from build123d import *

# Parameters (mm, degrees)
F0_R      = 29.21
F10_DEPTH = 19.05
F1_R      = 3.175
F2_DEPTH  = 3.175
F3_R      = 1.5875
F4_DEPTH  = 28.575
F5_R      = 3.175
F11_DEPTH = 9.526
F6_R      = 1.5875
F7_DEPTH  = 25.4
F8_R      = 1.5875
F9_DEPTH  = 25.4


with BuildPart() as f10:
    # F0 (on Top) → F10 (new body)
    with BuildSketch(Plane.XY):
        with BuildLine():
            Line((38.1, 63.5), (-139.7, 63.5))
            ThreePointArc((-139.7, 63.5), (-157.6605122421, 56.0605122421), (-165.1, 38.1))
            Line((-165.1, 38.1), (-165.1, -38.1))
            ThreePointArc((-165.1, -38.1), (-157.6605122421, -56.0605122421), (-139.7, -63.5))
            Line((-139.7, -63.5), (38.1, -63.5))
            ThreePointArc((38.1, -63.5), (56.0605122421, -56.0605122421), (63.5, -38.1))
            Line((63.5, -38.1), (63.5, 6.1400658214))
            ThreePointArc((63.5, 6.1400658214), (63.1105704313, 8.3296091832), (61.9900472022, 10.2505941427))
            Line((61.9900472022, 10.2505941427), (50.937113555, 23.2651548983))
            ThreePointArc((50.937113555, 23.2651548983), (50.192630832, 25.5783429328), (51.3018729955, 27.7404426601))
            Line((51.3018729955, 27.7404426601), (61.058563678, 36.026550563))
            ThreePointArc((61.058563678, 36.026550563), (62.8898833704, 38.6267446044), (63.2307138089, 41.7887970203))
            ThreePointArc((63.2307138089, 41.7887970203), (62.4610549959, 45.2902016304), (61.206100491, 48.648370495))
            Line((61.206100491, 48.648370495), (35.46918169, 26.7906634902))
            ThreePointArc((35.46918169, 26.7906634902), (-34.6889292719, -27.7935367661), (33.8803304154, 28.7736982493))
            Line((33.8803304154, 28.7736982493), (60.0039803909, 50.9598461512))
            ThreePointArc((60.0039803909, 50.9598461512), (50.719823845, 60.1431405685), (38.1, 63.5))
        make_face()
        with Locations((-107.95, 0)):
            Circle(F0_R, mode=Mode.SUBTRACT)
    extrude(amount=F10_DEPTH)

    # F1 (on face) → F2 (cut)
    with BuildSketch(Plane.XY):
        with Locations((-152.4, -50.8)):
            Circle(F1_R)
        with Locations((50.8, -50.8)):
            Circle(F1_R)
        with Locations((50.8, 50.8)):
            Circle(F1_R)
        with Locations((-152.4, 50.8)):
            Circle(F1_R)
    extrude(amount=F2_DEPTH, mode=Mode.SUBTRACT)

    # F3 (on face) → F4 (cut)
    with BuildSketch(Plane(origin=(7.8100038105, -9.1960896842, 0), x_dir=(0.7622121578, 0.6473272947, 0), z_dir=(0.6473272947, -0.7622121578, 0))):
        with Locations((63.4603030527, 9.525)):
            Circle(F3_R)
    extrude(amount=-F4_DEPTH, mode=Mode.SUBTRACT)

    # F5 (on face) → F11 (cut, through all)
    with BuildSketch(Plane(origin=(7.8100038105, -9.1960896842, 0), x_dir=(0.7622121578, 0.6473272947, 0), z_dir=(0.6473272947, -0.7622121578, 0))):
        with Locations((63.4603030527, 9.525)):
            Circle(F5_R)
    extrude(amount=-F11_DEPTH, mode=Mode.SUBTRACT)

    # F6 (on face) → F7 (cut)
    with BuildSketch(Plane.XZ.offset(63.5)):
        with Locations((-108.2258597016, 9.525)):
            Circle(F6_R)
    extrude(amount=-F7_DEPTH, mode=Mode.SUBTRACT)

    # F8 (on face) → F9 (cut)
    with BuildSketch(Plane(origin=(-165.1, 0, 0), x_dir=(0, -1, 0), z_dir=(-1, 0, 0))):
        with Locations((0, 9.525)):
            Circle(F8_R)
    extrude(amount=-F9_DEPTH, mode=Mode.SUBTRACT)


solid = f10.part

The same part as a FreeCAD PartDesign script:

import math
import FreeCAD as App
import Part
import Sketcher
Q = App.Units.Quantity

doc = App.newDocument("Part")
body = doc.addObject("PartDesign::Body", "Body")

# Sketch on XY plane
sketch1 = body.newObject("Sketcher::SketchObject", "Sketch")
sketch1.AttachmentSupport = (doc.getObject("XY_Plane"), [""])
sketch1.MapMode = "FlatFace"
sketch1.addGeometry(Part.LineSegment(App.Vector(38.1, 63.5, 0), App.Vector(-139.7, 63.5, 0)), False)
sketch1.addGeometry(Part.ArcOfCircle(Part.Circle(App.Vector(-139.7, 38.1, 0), App.Vector(0, 0, 1), 25.4), math.radians(90), math.radians(180)), False)
sketch1.addGeometry(Part.LineSegment(App.Vector(-165.1, 38.1, 0), App.Vector(-165.1, -38.1, 0)), False)
sketch1.addGeometry(Part.ArcOfCircle(Part.Circle(App.Vector(-139.7, -38.1, 0), App.Vector(0, 0, 1), 25.4), math.radians(180), math.radians(270)), False)
sketch1.addGeometry(Part.LineSegment(App.Vector(-139.7, -63.5, 0), App.Vector(38.1, -63.5, 0)), False)
sketch1.addGeometry(Part.ArcOfCircle(Part.Circle(App.Vector(38.1, -38.1, 0), App.Vector(0, 0, 1), 25.4), math.radians(-90), math.radians(0)), False)
sketch1.addGeometry(Part.LineSegment(App.Vector(63.5, -38.1, 0), App.Vector(63.5, 6.140066, 0)), False)
sketch1.addGeometry(Part.ArcOfCircle(Part.Circle(App.Vector(57.15, 6.140066, 0), App.Vector(0, 0, 1), 6.35), math.radians(0), math.radians(40.340393)), False)
sketch1.addGeometry(Part.LineSegment(App.Vector(61.990047, 10.250594, 0), App.Vector(50.937114, 23.265155, 0)), False)
sketch1.addGeometry(Part.ArcOfCircle(Part.Circle(App.Vector(53.357137, 25.320419, 0), App.Vector(0, 0, 1), 3.175), math.radians(130.340393), math.radians(220.340393)), False)
sketch1.addGeometry(Part.LineSegment(App.Vector(51.301873, 27.740443, 0), App.Vector(61.058564, 36.026551, 0)), False)
sketch1.addGeometry(Part.ArcOfCircle(Part.Circle(App.Vector(56.948035, 40.866598, 0), App.Vector(0, 0, 1), 6.35), math.radians(-49.659607), math.radians(8.350496)), False)
sketch1.addGeometry(Part.ArcOfCircle(Part.Circle(App.Vector(38.1, 38.1, 0), App.Vector(0, 0, 1), 25.4), math.radians(8.350496), math.radians(24.537592)), False)
sketch1.addGeometry(Part.LineSegment(App.Vector(61.2061, 48.64837, 0), App.Vector(35.469182, 26.790663, 0)), False)
sketch1.addGeometry(Part.ArcOfCircle(Part.Circle(App.Vector(0, 0, 0), App.Vector(0, 0, 1), 44.45), math.radians(40.340393), math.radians(397.064564)), False)
sketch1.addGeometry(Part.LineSegment(App.Vector(33.88033, 28.773698, 0), App.Vector(60.00398, 50.959846, 0)), False)
sketch1.addGeometry(Part.ArcOfCircle(Part.Circle(App.Vector(38.1, 38.1, 0), App.Vector(0, 0, 1), 25.4), math.radians(30.417233), math.radians(90)), False)
sketch1.addGeometry(Part.Circle(App.Vector(-107.95, 0, 0), App.Vector(0, 0, 1), 29.21), False)
sketch1.addConstraint(Sketcher.Constraint("Tangent", 0, 2, 1, 1))
sketch1.addConstraint(Sketcher.Constraint("Tangent", 1, 2, 2, 1))
sketch1.addConstraint(Sketcher.Constraint("Tangent", 2, 2, 3, 1))
sketch1.addConstraint(Sketcher.Constraint("Tangent", 3, 2, 4, 1))
sketch1.addConstraint(Sketcher.Constraint("Tangent", 4, 2, 5, 1))
sketch1.addConstraint(Sketcher.Constraint("Tangent", 5, 2, 6, 1))
sketch1.addConstraint(Sketcher.Constraint("Tangent", 6, 2, 7, 1))
sketch1.addConstraint(Sketcher.Constraint("Tangent", 7, 2, 8, 1))
sketch1.addConstraint(Sketcher.Constraint("Tangent", 8, 2, 9, 2))
sketch1.addConstraint(Sketcher.Constraint("Tangent", 9, 1, 10, 1))
sketch1.addConstraint(Sketcher.Constraint("Tangent", 10, 2, 11, 1))
sketch1.addConstraint(Sketcher.Constraint("Tangent", 11, 2, 12, 1))
sketch1.addConstraint(Sketcher.Constraint("Coincident", 12, 2, 13, 1))
sketch1.addConstraint(Sketcher.Constraint("Coincident", 13, 2, 14, 2))
sketch1.addConstraint(Sketcher.Constraint("Coincident", 14, 1, 15, 1))
sketch1.addConstraint(Sketcher.Constraint("Coincident", 15, 2, 16, 1))
sketch1.addConstraint(Sketcher.Constraint("Tangent", 16, 2, 0, 1))
sketch1.addConstraint(Sketcher.Constraint("Horizontal", 0))
sketch1.addConstraint(Sketcher.Constraint("Vertical", 2))
sketch1.addConstraint(Sketcher.Constraint("Horizontal", 4))
sketch1.addConstraint(Sketcher.Constraint("Vertical", 6))
sketch1.addConstraint(Sketcher.Constraint("Coincident", 14, 3, -1, 1))
sketch1.addConstraint(Sketcher.Constraint("Coincident", 16, 3, 12, 3))
sketch1.addConstraint(Sketcher.Constraint("Equal", 1, 3))
sketch1.addConstraint(Sketcher.Constraint("Equal", 3, 5))
sketch1.addConstraint(Sketcher.Constraint("Equal", 7, 11))
sketch1.addConstraint(Sketcher.Constraint("Equal", 5, 12))
sketch1.addConstraint(Sketcher.Constraint("Equal", 12, 16))
sketch1.addConstraint(Sketcher.Constraint("Symmetric", 5, 3, 12, 3, -1))
sketch1.addConstraint(Sketcher.Constraint("PointOnObject", 17, 3, -1))
sketch1.addConstraint(Sketcher.Constraint("Perpendicular", 8, 10))
sketch1.addConstraint(Sketcher.Constraint("Parallel", 10, 13))
sketch1.addConstraint(Sketcher.Constraint("Parallel", 13, 15))
sketch1.addConstraint(Sketcher.Constraint("Radius", 1, Q("1 in")))
sketch1.addConstraint(Sketcher.Constraint("Diameter", 17, Q("2.3 in")))
sketch1.addConstraint(Sketcher.Constraint("DistanceX", 0, 2, 0, 1, Q("7 in")))
sketch1.addConstraint(Sketcher.Constraint("DistanceY", 2, 2, 2, 1, Q("3 in")))
sketch1.addConstraint(Sketcher.Constraint("Radius", 7, Q("0.25 in")))
sketch1.addConstraint(Sketcher.Constraint("Radius", 14, Q("1.75 in")))
sketch1.addConstraint(Sketcher.Constraint("Radius", 9, Q("0.125 in")))
sketch1.addConstraint(Sketcher.Constraint("DistanceX", 1, 3, -1, 1, Q("5.5 in")))
sketch1.addConstraint(Sketcher.Constraint("DistanceX", 17, 3, -1, 1, Q("4.25 in")))
sketch1.addConstraint(Sketcher.Constraint("DistanceX", 8, 2, 11, 2, Q("0.484 in")))
sketch1.addConstraint(Sketcher.Constraint("DistanceY", 7, 2, 9, 3, Q("0.5933002 in")))
sketch1.addConstraint(Sketcher.Constraint("DistanceX", -1, 1, 12, 2, Q("61.2061 mm")))
sketch1.addConstraint(Sketcher.Constraint("DistanceY", -1, 1, 14, 1, Q("28.773698 mm")))
sketch1.addConstraint(Sketcher.Constraint("DistanceX", 9, 3, 11, 3, Q("3.590898 mm")))
pad1 = body.newObject("PartDesign::Pad", "Pad")
pad1.Profile = sketch1
pad1.Length = Q("0.75 in")

# Sketch on XY plane
sketch2 = body.newObject("Sketcher::SketchObject", "Sketch001")
sketch2.AttachmentSupport = (doc.getObject("XY_Plane"), [""])
sketch2.MapMode = "FlatFace"
sketch2.addGeometry(Part.Circle(App.Vector(-152.4, -50.8, 0), App.Vector(0, 0, 1), 3.175), False)
sketch2.addGeometry(Part.Circle(App.Vector(50.8, -50.8, 0), App.Vector(0, 0, 1), 3.175), False)
sketch2.addGeometry(Part.Circle(App.Vector(50.8, 50.8, 0), App.Vector(0, 0, 1), 3.175), False)
sketch2.addGeometry(Part.Circle(App.Vector(-152.4, 50.8, 0), App.Vector(0, 0, 1), 3.175), False)
sketch2.addConstraint(Sketcher.Constraint("Equal", 0, 1))
sketch2.addConstraint(Sketcher.Constraint("Equal", 1, 2))
sketch2.addConstraint(Sketcher.Constraint("Equal", 2, 3))
sketch2.addConstraint(Sketcher.Constraint("Symmetric", 1, 3, 2, 3, -1))
sketch2.addConstraint(Sketcher.Constraint("Symmetric", 0, 3, 3, 3, -1))
sketch2.addConstraint(Sketcher.Constraint("Horizontal", 0, 3, 1, 3))
sketch2.addConstraint(Sketcher.Constraint("Diameter", 0, Q("0.25 in")))
sketch2.addConstraint(Sketcher.Constraint("DistanceX", 0, 3, -1, 1, Q("6 in")))
sketch2.addConstraint(Sketcher.Constraint("DistanceY", 0, 3, -1, 1, Q("2 in")))
sketch2.addConstraint(Sketcher.Constraint("DistanceX", -1, 1, 1, 3, Q("2 in")))
pocket1 = body.newObject("PartDesign::Pocket", "Pocket")
pocket1.Profile = sketch2
pocket1.Length = Q("0.125 in")
pocket1.Reversed = True

# Sketch on an angled plane
sketch3 = body.newObject("Sketcher::SketchObject", "Sketch002")
sketch3.Placement = App.Placement(App.Vector(7.810004, -9.19609, 0), App.Rotation(App.Vector(0.762212158, 0.647327295, 0), App.Vector(0, 0, 1.000000001), App.Vector(0.647327295, -0.762212158, 0), "ZXY"))
sketch3.addGeometry(Part.Circle(App.Vector(63.460303, 9.525, 0), App.Vector(0, 0, 1), 1.5875), False)
sketch3.addConstraint(Sketcher.Constraint("Diameter", 0, Q("0.125 in")))
sketch3.addConstraint(Sketcher.Constraint("DistanceY", -1, 1, 0, 3, Q("0.375 in")))
sketch3.addConstraint(Sketcher.Constraint("DistanceX", -1, 1, 0, 3, Q("63.460303 mm")))
pocket2 = body.newObject("PartDesign::Pocket", "Pocket001")
pocket2.Profile = sketch3
pocket2.Length = Q("1.125 in")

# Sketch on an angled plane
sketch4 = body.newObject("Sketcher::SketchObject", "Sketch003")
sketch4.Placement = App.Placement(App.Vector(7.810004, -9.19609, 0), App.Rotation(App.Vector(0.762212158, 0.647327295, 0), App.Vector(0, 0, 1.000000001), App.Vector(0.647327295, -0.762212158, 0), "ZXY"))
sketch4.addGeometry(Part.Circle(App.Vector(63.460303, 9.525, 0), App.Vector(0, 0, 1), 3.175), False)
sketch4.addConstraint(Sketcher.Constraint("Diameter", 0, Q("0.25 in")))
sketch4.addConstraint(Sketcher.Constraint("DistanceY", -1, 1, 0, 3, Q("0.375 in")))
sketch4.addConstraint(Sketcher.Constraint("DistanceX", -1, 1, 0, 3, Q("63.460303 mm")))
pocket3 = body.newObject("PartDesign::Pocket", "Pocket002")
pocket3.Profile = sketch4
pocket3.Length = 9.526

# Sketch on XZ plane
sketch5 = body.newObject("Sketcher::SketchObject", "Sketch004")
sketch5.AttachmentSupport = (doc.getObject("XZ_Plane"), [""])
sketch5.MapMode = "FlatFace"
sketch5.AttachmentOffset = App.Placement(App.Vector(0, 0, 2.5 * 25.4), App.Rotation())
sketch5.addGeometry(Part.Circle(App.Vector(-108.22586, 9.525, 0), App.Vector(0, 0, 1), 1.5875), False)
sketch5.addConstraint(Sketcher.Constraint("Diameter", 0, Q("0.125 in")))
sketch5.addConstraint(Sketcher.Constraint("DistanceY", -1, 1, 0, 3, Q("0.375 in")))
sketch5.addConstraint(Sketcher.Constraint("DistanceX", 0, 3, -1, 1, Q("108.22586 mm")))
pocket4 = body.newObject("PartDesign::Pocket", "Pocket003")
pocket4.Profile = sketch5
pocket4.Length = Q("1 in")

# Sketch on YZ plane
sketch6 = body.newObject("Sketcher::SketchObject", "Sketch005")
sketch6.AttachmentSupport = (doc.getObject("YZ_Plane"), [""])
sketch6.MapMode = "FlatFace"
sketch6.AttachmentOffset = App.Placement(App.Vector(0, 0, -6.5 * 25.4), App.Rotation())
sketch6.addGeometry(Part.Circle(App.Vector(0, 9.525, 0), App.Vector(0, 0, 1), 1.5875), False)
sketch6.addConstraint(Sketcher.Constraint("PointOnObject", 0, 3, -2))
sketch6.addConstraint(Sketcher.Constraint("Diameter", 0, Q("0.125 in")))
sketch6.addConstraint(Sketcher.Constraint("DistanceY", -1, 1, 0, 3, Q("0.375 in")))
pocket5 = body.newObject("PartDesign::Pocket", "Pocket004")
pocket5.Profile = sketch6
pocket5.Length = Q("1 in")
pocket5.Reversed = True

doc.recompute()
